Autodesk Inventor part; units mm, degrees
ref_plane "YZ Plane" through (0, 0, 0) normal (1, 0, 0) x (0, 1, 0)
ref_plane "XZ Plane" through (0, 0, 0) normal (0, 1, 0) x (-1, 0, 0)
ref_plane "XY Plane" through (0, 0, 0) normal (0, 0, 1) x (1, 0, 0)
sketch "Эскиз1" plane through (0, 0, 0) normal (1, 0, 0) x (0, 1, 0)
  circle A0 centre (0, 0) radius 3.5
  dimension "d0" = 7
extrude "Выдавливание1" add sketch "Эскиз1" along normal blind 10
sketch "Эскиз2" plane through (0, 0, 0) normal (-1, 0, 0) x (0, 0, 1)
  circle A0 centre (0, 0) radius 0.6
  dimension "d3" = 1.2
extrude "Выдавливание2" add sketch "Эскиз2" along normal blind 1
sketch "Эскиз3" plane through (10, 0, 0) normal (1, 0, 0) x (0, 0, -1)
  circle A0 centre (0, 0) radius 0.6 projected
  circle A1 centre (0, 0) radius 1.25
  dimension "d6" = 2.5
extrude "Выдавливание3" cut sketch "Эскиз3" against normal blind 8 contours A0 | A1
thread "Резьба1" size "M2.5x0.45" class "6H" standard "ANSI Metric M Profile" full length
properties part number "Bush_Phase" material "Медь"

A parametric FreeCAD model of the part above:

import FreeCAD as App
import Part
import Sketcher

V = App.Vector

doc = App.newDocument("Part")
body = doc.addObject("PartDesign::Body", "Body")

sketch1 = body.newObject("Sketcher::SketchObject", "Sketch")
sketch1.AttachmentSupport = (doc.getObject("YZ_Plane"), [""])
sketch1.MapMode = "FlatFace"
sketch1.addGeometry(Part.Circle(V(0, 0, 0), V(0, 0, 1), 3.5), False)
sketch1.addConstraint([
    Sketcher.Constraint("Coincident", 0, 3, -1, 1),
    Sketcher.Constraint("Diameter", 0, 7.0),
])
pad1 = body.newObject("PartDesign::Pad", "Pad")
pad1.Profile = sketch1
pad1.Length = 10

sketch2 = body.newObject("Sketcher::SketchObject", "Sketch001")
sketch2.AttachmentSupport = (doc.getObject("YZ_Plane"), [""])
sketch2.MapMode = "FlatFace"
sketch2.addGeometry(Part.Circle(V(0, 0, 0), V(0, 0, 1), 0.6), False)
sketch2.addConstraint([
    Sketcher.Constraint("Coincident", 0, 3, -1, 1),
    Sketcher.Constraint("Diameter", 0, 1.2),
])
pad2 = body.newObject("PartDesign::Pad", "Pad001")
pad2.Profile = sketch2
pad2.Length = 1
pad2.Reversed = True

sketch3 = body.newObject("Sketcher::SketchObject", "Sketch002")
sketch3.AttachmentSupport = (doc.getObject("YZ_Plane"), [""])
sketch3.MapMode = "FlatFace"
sketch3.AttachmentOffset = App.Placement(V(0, 0, 10), App.Rotation())
sketch3.addGeometry(Part.Circle(V(0, 0, 0), V(0, 0, 1), 1.2), False)
sketch3.addConstraint([
    Sketcher.Constraint("Coincident", 0, 3, -1, 1),
    Sketcher.Constraint("Diameter", 0, 2.5),
])
pocket1 = body.newObject("PartDesign::Pocket", "Pocket")
pocket1.Profile = sketch3
pocket1.Length = 8

doc.recompute()
